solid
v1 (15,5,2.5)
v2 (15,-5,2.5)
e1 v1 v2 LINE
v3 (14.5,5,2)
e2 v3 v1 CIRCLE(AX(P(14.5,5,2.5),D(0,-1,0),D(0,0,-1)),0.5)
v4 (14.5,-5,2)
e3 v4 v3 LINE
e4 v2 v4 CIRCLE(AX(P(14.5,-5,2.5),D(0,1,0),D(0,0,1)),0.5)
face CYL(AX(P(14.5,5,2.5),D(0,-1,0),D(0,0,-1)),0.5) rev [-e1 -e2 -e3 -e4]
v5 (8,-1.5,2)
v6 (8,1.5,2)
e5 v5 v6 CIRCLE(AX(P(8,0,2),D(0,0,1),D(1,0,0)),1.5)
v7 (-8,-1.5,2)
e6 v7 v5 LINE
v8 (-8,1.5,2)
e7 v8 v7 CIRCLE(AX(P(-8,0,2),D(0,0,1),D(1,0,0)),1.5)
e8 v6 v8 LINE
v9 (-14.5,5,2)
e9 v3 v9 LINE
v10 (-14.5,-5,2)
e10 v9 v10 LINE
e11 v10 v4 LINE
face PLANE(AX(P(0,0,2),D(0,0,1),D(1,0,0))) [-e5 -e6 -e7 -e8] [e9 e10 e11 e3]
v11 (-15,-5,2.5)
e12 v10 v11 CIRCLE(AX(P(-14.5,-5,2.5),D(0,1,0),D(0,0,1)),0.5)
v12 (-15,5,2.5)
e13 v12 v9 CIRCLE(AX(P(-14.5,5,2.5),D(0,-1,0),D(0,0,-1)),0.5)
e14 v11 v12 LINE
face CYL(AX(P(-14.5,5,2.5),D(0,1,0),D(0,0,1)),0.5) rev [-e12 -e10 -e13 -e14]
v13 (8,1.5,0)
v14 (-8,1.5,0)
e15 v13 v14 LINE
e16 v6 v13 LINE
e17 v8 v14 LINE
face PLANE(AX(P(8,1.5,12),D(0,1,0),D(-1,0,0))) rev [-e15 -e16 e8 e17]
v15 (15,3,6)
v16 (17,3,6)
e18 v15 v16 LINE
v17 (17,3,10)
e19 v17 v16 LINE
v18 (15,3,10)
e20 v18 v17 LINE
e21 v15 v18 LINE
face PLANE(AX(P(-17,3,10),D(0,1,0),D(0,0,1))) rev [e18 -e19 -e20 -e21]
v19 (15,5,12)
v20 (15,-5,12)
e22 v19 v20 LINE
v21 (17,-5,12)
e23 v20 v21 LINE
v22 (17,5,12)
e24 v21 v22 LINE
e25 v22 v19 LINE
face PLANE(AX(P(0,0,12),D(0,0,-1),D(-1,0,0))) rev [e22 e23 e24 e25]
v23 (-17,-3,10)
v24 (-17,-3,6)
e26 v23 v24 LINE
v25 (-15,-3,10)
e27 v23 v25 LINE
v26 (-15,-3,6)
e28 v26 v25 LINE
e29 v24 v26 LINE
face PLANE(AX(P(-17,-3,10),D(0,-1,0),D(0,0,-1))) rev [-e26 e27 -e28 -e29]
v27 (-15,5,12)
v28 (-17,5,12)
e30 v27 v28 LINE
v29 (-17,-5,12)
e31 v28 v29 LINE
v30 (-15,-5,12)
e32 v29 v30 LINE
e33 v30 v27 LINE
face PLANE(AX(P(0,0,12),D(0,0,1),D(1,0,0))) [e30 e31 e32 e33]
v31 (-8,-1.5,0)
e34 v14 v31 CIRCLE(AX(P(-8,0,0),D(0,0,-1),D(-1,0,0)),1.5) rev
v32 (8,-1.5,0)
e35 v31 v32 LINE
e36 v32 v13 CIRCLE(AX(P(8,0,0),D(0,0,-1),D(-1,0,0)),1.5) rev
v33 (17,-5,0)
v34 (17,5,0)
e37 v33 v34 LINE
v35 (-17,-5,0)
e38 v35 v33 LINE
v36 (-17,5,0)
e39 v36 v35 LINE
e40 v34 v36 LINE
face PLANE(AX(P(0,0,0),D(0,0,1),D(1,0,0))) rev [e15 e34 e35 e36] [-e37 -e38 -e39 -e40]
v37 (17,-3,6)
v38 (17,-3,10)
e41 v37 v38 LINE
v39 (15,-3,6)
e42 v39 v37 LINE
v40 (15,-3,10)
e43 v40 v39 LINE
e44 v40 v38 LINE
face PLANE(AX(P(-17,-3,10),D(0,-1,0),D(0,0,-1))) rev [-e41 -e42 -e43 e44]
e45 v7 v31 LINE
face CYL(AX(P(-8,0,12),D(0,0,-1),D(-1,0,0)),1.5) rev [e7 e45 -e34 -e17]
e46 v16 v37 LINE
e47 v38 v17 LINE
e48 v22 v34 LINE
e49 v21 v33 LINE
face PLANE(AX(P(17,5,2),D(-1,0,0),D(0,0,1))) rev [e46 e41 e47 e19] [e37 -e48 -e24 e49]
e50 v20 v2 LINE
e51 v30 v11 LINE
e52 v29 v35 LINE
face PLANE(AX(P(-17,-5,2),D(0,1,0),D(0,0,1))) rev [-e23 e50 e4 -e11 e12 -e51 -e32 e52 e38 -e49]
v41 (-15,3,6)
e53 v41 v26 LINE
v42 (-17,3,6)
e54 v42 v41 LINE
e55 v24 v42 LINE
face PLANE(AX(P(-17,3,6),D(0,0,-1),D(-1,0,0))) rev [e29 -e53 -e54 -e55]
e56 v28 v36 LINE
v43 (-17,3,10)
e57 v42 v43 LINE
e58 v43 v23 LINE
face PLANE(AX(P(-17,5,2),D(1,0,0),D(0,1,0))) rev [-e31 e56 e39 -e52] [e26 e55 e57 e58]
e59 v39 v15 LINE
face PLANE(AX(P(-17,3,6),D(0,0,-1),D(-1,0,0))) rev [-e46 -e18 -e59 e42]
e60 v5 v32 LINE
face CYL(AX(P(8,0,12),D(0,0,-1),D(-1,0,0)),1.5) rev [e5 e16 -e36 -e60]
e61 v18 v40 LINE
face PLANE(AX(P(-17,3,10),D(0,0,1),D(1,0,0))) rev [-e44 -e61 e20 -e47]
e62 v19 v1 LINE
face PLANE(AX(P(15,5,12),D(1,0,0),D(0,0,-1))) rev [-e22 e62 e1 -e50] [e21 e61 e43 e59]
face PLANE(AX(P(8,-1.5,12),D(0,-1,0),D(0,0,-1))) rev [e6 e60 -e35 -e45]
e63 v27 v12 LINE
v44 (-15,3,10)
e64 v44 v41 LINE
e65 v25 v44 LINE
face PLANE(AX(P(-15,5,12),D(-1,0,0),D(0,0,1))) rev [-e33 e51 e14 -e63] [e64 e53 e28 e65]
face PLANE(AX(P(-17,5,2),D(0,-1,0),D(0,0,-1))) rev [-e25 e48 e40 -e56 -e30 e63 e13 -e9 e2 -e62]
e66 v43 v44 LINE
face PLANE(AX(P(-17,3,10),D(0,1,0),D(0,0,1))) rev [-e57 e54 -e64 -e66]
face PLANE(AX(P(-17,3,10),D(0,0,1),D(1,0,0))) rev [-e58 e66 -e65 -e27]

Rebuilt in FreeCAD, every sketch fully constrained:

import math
import FreeCAD as App
import Part
import Sketcher

V = App.Vector
Q = App.Units.Quantity


def edges_at(feature, points):
    """Names of the edges that pass closest to the given points."""
    edges = feature.Shape.Edges
    near = lambda p: min(range(len(edges)), key=lambda i: edges[i].distToShape(Part.Vertex(*p))[0])
    return sorted({f"Edge{near(p) + 1}" for p in points})


def add_polygon(sketch, points):
    """Adds a closed chain of lines whose ends are joined by coincident constraints."""
    first, n = sketch.GeometryCount, len(points)
    for a, b in zip(points, points[1:] + points[:1]):
        sketch.addGeometry(Part.LineSegment(App.Vector(*a, 0), App.Vector(*b, 0)), False)
    for i in range(n):
        sketch.addConstraint(Sketcher.Constraint("Coincident", first + i, 2, first + (i + 1) % n, 1))

doc = App.newDocument("Part")
body = doc.addObject("PartDesign::Body", "Body")

# Sketch on XY plane
sketch1 = body.newObject("Sketcher::SketchObject", "Sketch")
sketch1.AttachmentSupport = (doc.getObject("XY_Plane"), [""])
sketch1.MapMode = "FlatFace"
add_polygon(sketch1, [(-17, 5), (-17, -5), (17, -5), (17, 5)])  # lines 0-3
sketch1.addConstraint([
    Sketcher.Constraint("Vertical", 0),
    Sketcher.Constraint("Horizontal", 1),
    Sketcher.Constraint("Vertical", 2),
    Sketcher.Constraint("Horizontal", 3),
    Sketcher.Constraint("Symmetric", 0, 2, 2, 2, -1, 1),
    Sketcher.Constraint("DistanceX", 1, 1, 1, 2, Q("34 mm")),
    Sketcher.Constraint("DistanceY", 0, 2, 0, 1, Q("10 mm")),
])
pad1 = body.newObject("PartDesign::Pad", "Pad")
pad1.Profile = sketch1
pad1.Length = 2

# Sketch on XY plane
sketch2 = body.newObject("Sketcher::SketchObject", "Sketch001")
sketch2.AttachmentSupport = (doc.getObject("XY_Plane"), [""])
sketch2.MapMode = "FlatFace"
sketch2.AttachmentOffset = App.Placement(V(0, 0, 2), App.Rotation())
add_polygon(sketch2, [(-17, 5), (-17, -5), (-15, -5), (-15, 5)])  # lines 0-3
add_polygon(sketch2, [(15, 5), (15, -5), (17, -5), (17, 5)])  # lines 4-7
sketch2.addConstraint([
    Sketcher.Constraint("Vertical", 0),
    Sketcher.Constraint("Horizontal", 1),
    Sketcher.Constraint("Vertical", 2),
    Sketcher.Constraint("Horizontal", 3),
    Sketcher.Constraint("Vertical", 4),
    Sketcher.Constraint("Horizontal", 5),
    Sketcher.Constraint("Vertical", 6),
    Sketcher.Constraint("Horizontal", 7),
    Sketcher.Constraint("Symmetric", 2, 2, 4, 2, -1, 1),
    Sketcher.Constraint("Symmetric", 0, 2, 6, 2, -1, 1),
    Sketcher.Constraint("Horizontal", 1, 2, 4, 2),
    Sketcher.Constraint("DistanceX", 1, 1, 1, 2, Q("2 mm")),
    Sketcher.Constraint("DistanceY", 0, 2, 0, 1, Q("10 mm")),
    Sketcher.Constraint("DistanceX", 0, 2, -1, 1, Q("17 mm")),
])
pad2 = body.newObject("PartDesign::Pad", "Pad001")
pad2.Profile = sketch2
pad2.Length = 10
doc.recompute()

fillet = body.newObject("PartDesign::Fillet", "Fillet")
fillet.Base = (pad2, edges_at(pad2, [(-15, 0, 2), (15, 0, 2)]))
fillet.Radius = 0.5

# Sketch on YZ plane
sketch3 = body.newObject("Sketcher::SketchObject", "Sketch002")
sketch3.AttachmentSupport = (doc.getObject("YZ_Plane"), [""])
sketch3.MapMode = "FlatFace"
sketch3.AttachmentOffset = App.Placement(V(0, 0, 17), App.Rotation())
add_polygon(sketch3, [(3, 10), (-3, 10), (-3, 6), (3, 6)])  # lines 0-3
sketch3.addConstraint([
    Sketcher.Constraint("Horizontal", 0),
    Sketcher.Constraint("Vertical", 1),
    Sketcher.Constraint("Horizontal", 2),
    Sketcher.Constraint("Vertical", 3),
    Sketcher.Constraint("DistanceX", 0, 2, 0, 1, Q("6 mm")),
    Sketcher.Constraint("DistanceY", 1, 2, 1, 1, Q("4 mm")),
    Sketcher.Constraint("DistanceX", 0, 2, -1, 1, Q("3 mm")),
    Sketcher.Constraint("DistanceY", -1, 1, 0, 2, Q("10 mm")),
])
pocket1 = body.newObject("PartDesign::Pocket", "Pocket")
pocket1.Profile = sketch3
pocket1.Type = "ThroughAll"
pocket1.Midplane = True

# Sketch on XY plane
sketch4 = body.newObject("Sketcher::SketchObject", "Sketch003")
sketch4.AttachmentSupport = (doc.getObject("XY_Plane"), [""])
sketch4.MapMode = "FlatFace"
sketch4.addGeometry([
    Part.LineSegment(V(8, -1.5, 0), V(-8, -1.5, 0)),
    Part.ArcOfCircle(Part.Circle(V(-8, 0, 0), V(0, 0, 1), 1.5), math.radians(90), math.radians(270)),
    Part.LineSegment(V(-8, 1.5, 0), V(8, 1.5, 0)),
    Part.ArcOfCircle(Part.Circle(V(8, 0, 0), V(0, 0, 1), 1.5), math.radians(-90), math.radians(90)),
], False)
sketch4.addConstraint([
    Sketcher.Constraint("Tangent", 0, 2, 1, 2),
    Sketcher.Constraint("Tangent", 1, 1, 2, 1),
    Sketcher.Constraint("Tangent", 2, 2, 3, 2),
    Sketcher.Constraint("Tangent", 3, 1, 0, 1),
    Sketcher.Constraint("Horizontal", 0),
    Sketcher.Constraint("Horizontal", 2),
    Sketcher.Constraint("Symmetric", 1, 3, 3, 3, -1, 1),
    Sketcher.Constraint("Radius", 1, Q("1.5 mm")),
    Sketcher.Constraint("DistanceX", 0, 2, 0, 1, Q("16 mm")),
])
pocket2 = body.newObject("PartDesign::Pocket", "Pocket001")
pocket2.Profile = sketch4
pocket2.Type = "ThroughAll"
pocket2.Midplane = True

doc.recompute()
